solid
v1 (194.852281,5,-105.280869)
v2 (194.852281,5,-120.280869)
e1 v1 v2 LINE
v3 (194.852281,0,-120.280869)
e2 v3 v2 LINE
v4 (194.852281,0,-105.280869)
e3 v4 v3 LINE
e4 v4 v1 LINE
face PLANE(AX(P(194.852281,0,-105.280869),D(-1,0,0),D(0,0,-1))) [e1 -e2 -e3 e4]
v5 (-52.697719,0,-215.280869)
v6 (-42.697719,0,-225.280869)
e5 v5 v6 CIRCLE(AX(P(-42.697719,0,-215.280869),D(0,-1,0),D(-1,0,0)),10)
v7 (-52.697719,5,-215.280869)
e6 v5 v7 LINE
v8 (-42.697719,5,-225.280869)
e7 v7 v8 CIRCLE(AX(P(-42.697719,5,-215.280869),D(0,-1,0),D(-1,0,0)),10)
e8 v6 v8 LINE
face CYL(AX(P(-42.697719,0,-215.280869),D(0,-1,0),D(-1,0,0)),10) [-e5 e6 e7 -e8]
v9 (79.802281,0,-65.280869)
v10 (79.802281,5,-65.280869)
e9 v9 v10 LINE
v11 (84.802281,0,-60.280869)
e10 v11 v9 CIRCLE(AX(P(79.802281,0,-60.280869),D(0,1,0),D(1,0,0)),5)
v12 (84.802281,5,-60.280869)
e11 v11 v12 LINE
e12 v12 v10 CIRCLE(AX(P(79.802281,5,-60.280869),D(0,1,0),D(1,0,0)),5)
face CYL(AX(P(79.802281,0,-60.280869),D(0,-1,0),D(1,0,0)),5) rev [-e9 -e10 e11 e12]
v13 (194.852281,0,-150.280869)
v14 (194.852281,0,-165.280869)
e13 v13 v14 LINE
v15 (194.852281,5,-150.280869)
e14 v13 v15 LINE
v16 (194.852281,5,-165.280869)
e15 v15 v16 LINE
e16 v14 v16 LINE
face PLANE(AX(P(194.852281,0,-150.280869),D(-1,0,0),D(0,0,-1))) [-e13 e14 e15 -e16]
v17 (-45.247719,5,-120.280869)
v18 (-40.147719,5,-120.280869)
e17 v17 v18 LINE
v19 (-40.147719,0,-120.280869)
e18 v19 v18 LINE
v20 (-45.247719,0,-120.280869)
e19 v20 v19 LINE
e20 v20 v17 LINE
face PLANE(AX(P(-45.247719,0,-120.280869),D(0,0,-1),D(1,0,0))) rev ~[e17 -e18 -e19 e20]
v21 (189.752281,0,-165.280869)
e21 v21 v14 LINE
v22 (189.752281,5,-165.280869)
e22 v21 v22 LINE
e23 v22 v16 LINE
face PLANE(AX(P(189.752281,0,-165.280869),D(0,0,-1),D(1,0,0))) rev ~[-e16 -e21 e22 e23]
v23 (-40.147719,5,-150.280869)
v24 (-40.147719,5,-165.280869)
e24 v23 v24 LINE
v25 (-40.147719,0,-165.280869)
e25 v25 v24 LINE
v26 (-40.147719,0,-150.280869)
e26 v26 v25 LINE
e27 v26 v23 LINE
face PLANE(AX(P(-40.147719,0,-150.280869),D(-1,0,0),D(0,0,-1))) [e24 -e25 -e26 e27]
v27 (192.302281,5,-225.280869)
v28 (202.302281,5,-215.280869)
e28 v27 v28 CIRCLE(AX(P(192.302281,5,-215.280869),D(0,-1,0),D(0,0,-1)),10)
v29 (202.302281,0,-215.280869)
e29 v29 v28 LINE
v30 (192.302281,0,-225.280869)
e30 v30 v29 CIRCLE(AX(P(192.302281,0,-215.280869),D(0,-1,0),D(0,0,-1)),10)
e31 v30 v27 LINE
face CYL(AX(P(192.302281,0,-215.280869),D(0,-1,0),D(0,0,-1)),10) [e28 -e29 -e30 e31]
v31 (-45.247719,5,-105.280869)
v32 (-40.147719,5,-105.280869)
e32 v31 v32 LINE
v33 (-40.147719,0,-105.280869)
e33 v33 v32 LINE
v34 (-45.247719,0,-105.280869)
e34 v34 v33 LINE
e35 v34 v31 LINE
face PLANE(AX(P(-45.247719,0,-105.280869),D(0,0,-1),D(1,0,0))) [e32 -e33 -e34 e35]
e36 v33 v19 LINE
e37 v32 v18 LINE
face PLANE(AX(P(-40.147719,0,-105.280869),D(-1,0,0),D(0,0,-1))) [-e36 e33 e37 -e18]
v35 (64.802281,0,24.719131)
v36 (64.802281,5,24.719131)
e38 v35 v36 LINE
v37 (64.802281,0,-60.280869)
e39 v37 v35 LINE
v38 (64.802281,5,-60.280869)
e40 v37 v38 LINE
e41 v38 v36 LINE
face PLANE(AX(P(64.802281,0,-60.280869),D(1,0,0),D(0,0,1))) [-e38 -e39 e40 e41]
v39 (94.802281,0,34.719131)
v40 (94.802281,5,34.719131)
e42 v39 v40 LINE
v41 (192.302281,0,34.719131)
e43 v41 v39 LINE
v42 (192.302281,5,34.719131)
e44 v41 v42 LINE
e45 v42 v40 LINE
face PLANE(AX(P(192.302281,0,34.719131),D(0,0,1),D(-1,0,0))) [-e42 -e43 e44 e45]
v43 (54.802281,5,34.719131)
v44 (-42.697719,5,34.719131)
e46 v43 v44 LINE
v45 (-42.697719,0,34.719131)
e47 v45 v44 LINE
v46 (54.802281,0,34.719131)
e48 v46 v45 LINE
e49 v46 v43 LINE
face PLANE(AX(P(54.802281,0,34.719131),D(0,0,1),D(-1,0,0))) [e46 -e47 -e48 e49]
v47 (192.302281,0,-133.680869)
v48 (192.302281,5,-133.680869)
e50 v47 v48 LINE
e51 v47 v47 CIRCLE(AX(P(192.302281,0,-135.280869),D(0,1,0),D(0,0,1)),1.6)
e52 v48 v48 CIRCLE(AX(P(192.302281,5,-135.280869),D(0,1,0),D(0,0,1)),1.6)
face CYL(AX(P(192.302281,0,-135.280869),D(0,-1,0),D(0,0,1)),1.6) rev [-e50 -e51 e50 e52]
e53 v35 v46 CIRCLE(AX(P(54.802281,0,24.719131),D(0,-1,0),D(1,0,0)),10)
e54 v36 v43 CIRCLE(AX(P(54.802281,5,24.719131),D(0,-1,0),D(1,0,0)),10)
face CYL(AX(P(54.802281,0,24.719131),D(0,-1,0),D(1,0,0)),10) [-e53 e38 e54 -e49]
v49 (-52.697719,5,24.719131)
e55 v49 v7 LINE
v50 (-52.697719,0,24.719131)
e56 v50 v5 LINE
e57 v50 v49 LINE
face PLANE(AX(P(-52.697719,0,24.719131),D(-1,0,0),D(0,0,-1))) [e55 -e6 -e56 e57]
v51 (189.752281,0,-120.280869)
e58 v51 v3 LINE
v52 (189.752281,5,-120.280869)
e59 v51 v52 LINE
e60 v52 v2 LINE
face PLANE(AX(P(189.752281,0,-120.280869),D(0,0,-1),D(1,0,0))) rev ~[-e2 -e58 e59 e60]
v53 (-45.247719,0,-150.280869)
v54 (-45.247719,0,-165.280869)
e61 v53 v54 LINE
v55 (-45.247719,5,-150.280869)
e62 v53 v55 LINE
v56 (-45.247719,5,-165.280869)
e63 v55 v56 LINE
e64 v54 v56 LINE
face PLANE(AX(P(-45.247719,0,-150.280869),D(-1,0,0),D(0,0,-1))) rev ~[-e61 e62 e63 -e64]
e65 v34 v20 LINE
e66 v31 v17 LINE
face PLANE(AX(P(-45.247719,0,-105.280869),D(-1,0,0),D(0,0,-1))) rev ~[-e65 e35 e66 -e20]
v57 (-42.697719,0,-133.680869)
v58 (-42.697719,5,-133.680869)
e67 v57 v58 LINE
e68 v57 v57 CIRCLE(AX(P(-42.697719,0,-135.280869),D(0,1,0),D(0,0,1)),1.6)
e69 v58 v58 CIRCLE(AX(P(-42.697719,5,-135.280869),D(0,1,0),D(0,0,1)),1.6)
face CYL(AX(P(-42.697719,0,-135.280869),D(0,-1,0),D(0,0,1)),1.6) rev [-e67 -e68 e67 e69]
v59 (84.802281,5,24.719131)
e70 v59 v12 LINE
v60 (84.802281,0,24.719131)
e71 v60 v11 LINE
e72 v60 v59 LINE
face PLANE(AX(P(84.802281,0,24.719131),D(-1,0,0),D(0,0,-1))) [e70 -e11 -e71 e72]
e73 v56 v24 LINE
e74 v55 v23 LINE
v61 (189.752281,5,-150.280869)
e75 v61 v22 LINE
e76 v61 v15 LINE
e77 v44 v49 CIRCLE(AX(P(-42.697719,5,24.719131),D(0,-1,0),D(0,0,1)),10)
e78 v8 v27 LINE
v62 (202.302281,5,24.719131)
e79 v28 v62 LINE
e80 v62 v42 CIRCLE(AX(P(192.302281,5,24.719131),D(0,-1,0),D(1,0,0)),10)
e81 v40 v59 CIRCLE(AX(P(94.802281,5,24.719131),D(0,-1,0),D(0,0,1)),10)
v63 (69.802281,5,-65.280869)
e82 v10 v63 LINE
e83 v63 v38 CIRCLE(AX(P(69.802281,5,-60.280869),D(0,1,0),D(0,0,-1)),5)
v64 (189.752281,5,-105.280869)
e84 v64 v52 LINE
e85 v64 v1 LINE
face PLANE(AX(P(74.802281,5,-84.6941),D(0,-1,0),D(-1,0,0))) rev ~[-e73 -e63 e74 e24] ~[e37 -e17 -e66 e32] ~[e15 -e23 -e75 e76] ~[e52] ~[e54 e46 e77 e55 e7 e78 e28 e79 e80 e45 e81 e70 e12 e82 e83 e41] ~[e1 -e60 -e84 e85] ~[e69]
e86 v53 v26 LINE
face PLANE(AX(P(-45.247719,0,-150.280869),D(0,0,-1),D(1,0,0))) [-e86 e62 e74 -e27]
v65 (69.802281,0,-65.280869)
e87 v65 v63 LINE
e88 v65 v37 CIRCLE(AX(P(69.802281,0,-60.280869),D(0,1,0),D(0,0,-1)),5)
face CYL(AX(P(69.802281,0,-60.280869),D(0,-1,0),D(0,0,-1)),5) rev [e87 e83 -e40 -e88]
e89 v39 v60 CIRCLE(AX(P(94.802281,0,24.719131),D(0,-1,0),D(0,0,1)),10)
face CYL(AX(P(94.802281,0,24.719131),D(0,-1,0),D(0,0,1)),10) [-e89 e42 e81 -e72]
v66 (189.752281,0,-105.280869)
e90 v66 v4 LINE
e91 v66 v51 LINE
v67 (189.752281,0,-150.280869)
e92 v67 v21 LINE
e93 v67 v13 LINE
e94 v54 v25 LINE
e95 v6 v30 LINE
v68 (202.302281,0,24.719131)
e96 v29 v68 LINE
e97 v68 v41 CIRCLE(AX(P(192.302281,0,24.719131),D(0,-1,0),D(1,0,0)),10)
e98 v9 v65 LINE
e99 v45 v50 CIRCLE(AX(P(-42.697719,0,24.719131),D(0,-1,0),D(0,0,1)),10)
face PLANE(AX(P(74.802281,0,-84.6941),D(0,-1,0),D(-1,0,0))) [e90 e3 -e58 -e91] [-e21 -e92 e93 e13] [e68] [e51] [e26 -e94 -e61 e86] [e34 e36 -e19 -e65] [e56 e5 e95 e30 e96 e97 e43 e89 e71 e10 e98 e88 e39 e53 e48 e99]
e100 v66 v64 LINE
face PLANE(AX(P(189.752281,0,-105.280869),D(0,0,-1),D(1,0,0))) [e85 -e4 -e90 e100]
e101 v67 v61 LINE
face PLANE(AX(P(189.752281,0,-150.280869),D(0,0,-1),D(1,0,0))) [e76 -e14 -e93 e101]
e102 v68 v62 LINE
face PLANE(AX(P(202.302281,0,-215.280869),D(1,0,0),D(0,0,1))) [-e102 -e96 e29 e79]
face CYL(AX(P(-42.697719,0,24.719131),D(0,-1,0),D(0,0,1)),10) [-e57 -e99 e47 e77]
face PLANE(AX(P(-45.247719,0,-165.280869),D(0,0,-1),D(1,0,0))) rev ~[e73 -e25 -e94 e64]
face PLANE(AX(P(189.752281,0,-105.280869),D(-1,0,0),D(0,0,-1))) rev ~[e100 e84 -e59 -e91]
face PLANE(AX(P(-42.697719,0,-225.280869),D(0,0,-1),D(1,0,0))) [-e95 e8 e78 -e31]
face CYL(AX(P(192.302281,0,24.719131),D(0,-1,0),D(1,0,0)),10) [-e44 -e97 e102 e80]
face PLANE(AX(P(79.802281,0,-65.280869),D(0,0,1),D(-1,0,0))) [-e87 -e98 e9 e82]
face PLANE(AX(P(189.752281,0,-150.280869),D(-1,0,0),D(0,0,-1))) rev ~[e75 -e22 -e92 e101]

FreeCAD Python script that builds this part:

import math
import FreeCAD as App
import Part
import Sketcher

V = App.Vector
Q = App.Units.Quantity


def add_polygon(sketch, points):
    """Adds a closed chain of lines whose ends are joined by coincident constraints."""
    first, n = sketch.GeometryCount, len(points)
    for a, b in zip(points, points[1:] + points[:1]):
        sketch.addGeometry(Part.LineSegment(App.Vector(*a, 0), App.Vector(*b, 0)), False)
    for i in range(n):
        sketch.addConstraint(Sketcher.Constraint("Coincident", first + i, 2, first + (i + 1) % n, 1))

doc = App.newDocument("Part")
body = doc.addObject("PartDesign::Body", "Body")

sketch1 = body.newObject("Sketcher::SketchObject", "Sketch")
sketch1.AttachmentSupport = (doc.getObject("XZ_Plane"), [""])
sketch1.MapMode = "FlatFace"
sketch1.addGeometry(Part.LineSegment(V(192.302281, -225.280869, 0), V(-42.697719, -225.280869, 0)), False)
sketch1.addGeometry(Part.ArcOfCircle(Part.Circle(V(-42.697719, -215.280869, 0), V(0, 0, 1), 10), math.radians(180), math.radians(270)), False)
sketch1.addGeometry(Part.LineSegment(V(-52.697719, -215.280869, 0), V(-52.697719, 24.719131, 0)), False)
sketch1.addGeometry(Part.ArcOfCircle(Part.Circle(V(-42.697719, 24.719131, 0), V(0, 0, 1), 10), math.radians(90), math.radians(180)), False)
sketch1.addGeometry(Part.LineSegment(V(-42.697719, 34.719131, 0), V(54.802281, 34.719131, 0)), False)
sketch1.addGeometry(Part.ArcOfCircle(Part.Circle(V(54.802281, 24.719131, 0), V(0, 0, 1), 10), math.radians(0), math.radians(90)), False)
sketch1.addGeometry(Part.LineSegment(V(64.802281, 24.719131, 0), V(64.802281, -60.280869, 0)), False)
sketch1.addGeometry(Part.ArcOfCircle(Part.Circle(V(69.802281, -60.280869, 0), V(0, 0, 1), 5), math.radians(180), math.radians(270)), False)
sketch1.addGeometry(Part.LineSegment(V(69.802281, -65.280869, 0), V(79.802281, -65.280869, 0)), False)
sketch1.addGeometry(Part.ArcOfCircle(Part.Circle(V(79.802281, -60.280869, 0), V(0, 0, 1), 5), math.radians(-90), math.radians(0)), False)
sketch1.addGeometry(Part.LineSegment(V(84.802281, -60.280869, 0), V(84.802281, 24.719131, 0)), False)
sketch1.addGeometry(Part.ArcOfCircle(Part.Circle(V(94.802281, 24.719131, 0), V(0, 0, 1), 10), math.radians(90), math.radians(180)), False)
sketch1.addGeometry(Part.LineSegment(V(94.802281, 34.719131, 0), V(192.302281, 34.719131, 0)), False)
sketch1.addGeometry(Part.ArcOfCircle(Part.Circle(V(192.302281, 24.719131, 0), V(0, 0, 1), 10), math.radians(0), math.radians(90)), False)
sketch1.addGeometry(Part.LineSegment(V(202.302281, 24.719131, 0), V(202.302281, -215.280869, 0)), False)
sketch1.addGeometry(Part.ArcOfCircle(Part.Circle(V(192.302281, -215.280869, 0), V(0, 0, 1), 10), math.radians(-90), math.radians(0)), False)
add_polygon(sketch1, [(189.752281, -105.280869), (189.752281, -120.280869), (194.852281, -120.280869), (194.852281, -105.280869)])
add_polygon(sketch1, [(-45.247719, -105.280869), (-45.247719, -120.280869), (-40.147719, -120.280869), (-40.147719, -105.280869)])
sketch1.addGeometry(Part.Circle(V(192.302281, -135.280869, 0), V(0, 0, 1), 1.6), False)
add_polygon(sketch1, [(189.752281, -150.280869), (189.752281, -165.280869), (194.852281, -165.280869), (194.852281, -150.280869)])
sketch1.addGeometry(Part.Circle(V(-42.697719, -135.280869, 0), V(0, 0, 1), 1.6), False)
add_polygon(sketch1, [(-45.247719, -150.280869), (-45.247719, -165.280869), (-40.147719, -165.280869), (-40.147719, -150.280869)])
sketch1.addConstraint([
    Sketcher.Constraint("Tangent", 0, 2, 1, 2),
    Sketcher.Constraint("Tangent", 1, 1, 2, 1),
    Sketcher.Constraint("Tangent", 2, 2, 3, 2),
    Sketcher.Constraint("Tangent", 3, 1, 4, 1),
    Sketcher.Constraint("Tangent", 4, 2, 5, 2),
    Sketcher.Constraint("Tangent", 5, 1, 6, 1),
    Sketcher.Constraint("Tangent", 6, 2, 7, 1),
    Sketcher.Constraint("Tangent", 7, 2, 8, 1),
    Sketcher.Constraint("Tangent", 8, 2, 9, 1),
    Sketcher.Constraint("Tangent", 9, 2, 10, 1),
    Sketcher.Constraint("Tangent", 10, 2, 11, 2),
    Sketcher.Constraint("Tangent", 11, 1, 12, 1),
    Sketcher.Constraint("Tangent", 12, 2, 13, 2),
    Sketcher.Constraint("Tangent", 13, 1, 14, 1),
    Sketcher.Constraint("Tangent", 14, 2, 15, 2),
    Sketcher.Constraint("Tangent", 15, 1, 0, 1),
    Sketcher.Constraint("Horizontal", 0),
    Sketcher.Constraint("Vertical", 2),
    Sketcher.Constraint("Horizontal", 4),
    Sketcher.Constraint("Vertical", 6),
    Sketcher.Constraint("Horizontal", 8),
    Sketcher.Constraint("Vertical", 10),
    Sketcher.Constraint("Horizontal", 12),
    Sketcher.Constraint("Vertical", 14),
    Sketcher.Constraint("Vertical", 16),
    Sketcher.Constraint("Horizontal", 17),
    Sketcher.Constraint("Vertical", 18),
    Sketcher.Constraint("Horizontal", 19),
    Sketcher.Constraint("Vertical", 20),
    Sketcher.Constraint("Horizontal", 21),
    Sketcher.Constraint("Vertical", 22),
    Sketcher.Constraint("Horizontal", 23),
    Sketcher.Constraint("Vertical", 25),
    Sketcher.Constraint("Horizontal", 26),
    Sketcher.Constraint("Vertical", 27),
    Sketcher.Constraint("Horizontal", 28),
    Sketcher.Constraint("Vertical", 30),
    Sketcher.Constraint("Horizontal", 31),
    Sketcher.Constraint("Vertical", 32),
    Sketcher.Constraint("Horizontal", 33),
    Sketcher.Constraint("Equal", 1, 3),
    Sketcher.Constraint("Equal", 3, 5),
    Sketcher.Constraint("Equal", 7, 9),
    Sketcher.Constraint("Equal", 5, 11),
    Sketcher.Constraint("Equal", 11, 13),
    Sketcher.Constraint("Equal", 13, 15),
    Sketcher.Constraint("Equal", 24, 29),
    Sketcher.Constraint("Horizontal", 5, 3, 11, 3),
    Sketcher.Constraint("Horizontal", 24, 3, 29, 3),
    Sketcher.Constraint("Horizontal", 17, 2, 20, 2),
    Sketcher.Constraint("Horizontal", 19, 2, 22, 2),
    Sketcher.Constraint("Horizontal", 26, 2, 30, 2),
    Sketcher.Constraint("Horizontal", 28, 2, 32, 2),
    Sketcher.Constraint("Vertical", 15, 3, 24, 3),
    Sketcher.Constraint("Vertical", 3, 3, 29, 3),
    Sketcher.Constraint("Vertical", 19, 2, 25, 2),
    Sketcher.Constraint("Vertical", 18, 2, 26, 2),
    Sketcher.Constraint("Vertical", 23, 2, 30, 2),
    Sketcher.Constraint("Vertical", 22, 2, 31, 2),
    Sketcher.Constraint("Equal", 4, 12),
    Sketcher.Constraint("Equal", 19, 21),
    Sketcher.Constraint("Equal", 22, 25),
    Sketcher.Constraint("Radius", 1, Q("10 mm")),
    Sketcher.Constraint("Radius", 7, Q("5 mm")),
    Sketcher.Constraint("Diameter", 24, Q("3.2 mm")),
    Sketcher.Constraint("DistanceX", 0, 2, 0, 1, Q("235 mm")),
    Sketcher.Constraint("DistanceX", 8, 1, 8, 2, Q("10 mm")),
    Sketcher.Constraint("DistanceY", 2, 1, 2, 2, Q("240 mm")),
    Sketcher.Constraint("DistanceY", 6, 2, 6, 1, Q("85 mm")),
    Sketcher.Constraint("DistanceY", 16, 2, 16, 1, Q("15 mm")),
    Sketcher.Constraint("DistanceX", 17, 1, 17, 2, Q("5.1 mm")),
    Sketcher.Constraint("DistanceY", 15, 3, 24, 3, Q("80 mm")),
    Sketcher.Constraint("DistanceY", 24, 3, 16, 2, Q("15 mm")),
    Sketcher.Constraint("DistanceY", 25, 2, 24, 3, Q("30 mm")),
    Sketcher.Constraint("DistanceX", 16, 2, 24, 3, Q("2.55 mm")),
    Sketcher.Constraint("DistanceX", 20, 2, 29, 3, Q("2.55 mm")),
    Sketcher.Constraint("DistanceX", 1, 3, -1, 1, Q("42.697719 mm")),
    Sketcher.Constraint("DistanceY", 1, 3, -1, 1, Q("215.280869 mm")),
])
pad1 = body.newObject("PartDesign::Pad", "Pad")
pad1.Profile = sketch1
pad1.Length = 5
pad1.Reversed = True

doc.recompute()
